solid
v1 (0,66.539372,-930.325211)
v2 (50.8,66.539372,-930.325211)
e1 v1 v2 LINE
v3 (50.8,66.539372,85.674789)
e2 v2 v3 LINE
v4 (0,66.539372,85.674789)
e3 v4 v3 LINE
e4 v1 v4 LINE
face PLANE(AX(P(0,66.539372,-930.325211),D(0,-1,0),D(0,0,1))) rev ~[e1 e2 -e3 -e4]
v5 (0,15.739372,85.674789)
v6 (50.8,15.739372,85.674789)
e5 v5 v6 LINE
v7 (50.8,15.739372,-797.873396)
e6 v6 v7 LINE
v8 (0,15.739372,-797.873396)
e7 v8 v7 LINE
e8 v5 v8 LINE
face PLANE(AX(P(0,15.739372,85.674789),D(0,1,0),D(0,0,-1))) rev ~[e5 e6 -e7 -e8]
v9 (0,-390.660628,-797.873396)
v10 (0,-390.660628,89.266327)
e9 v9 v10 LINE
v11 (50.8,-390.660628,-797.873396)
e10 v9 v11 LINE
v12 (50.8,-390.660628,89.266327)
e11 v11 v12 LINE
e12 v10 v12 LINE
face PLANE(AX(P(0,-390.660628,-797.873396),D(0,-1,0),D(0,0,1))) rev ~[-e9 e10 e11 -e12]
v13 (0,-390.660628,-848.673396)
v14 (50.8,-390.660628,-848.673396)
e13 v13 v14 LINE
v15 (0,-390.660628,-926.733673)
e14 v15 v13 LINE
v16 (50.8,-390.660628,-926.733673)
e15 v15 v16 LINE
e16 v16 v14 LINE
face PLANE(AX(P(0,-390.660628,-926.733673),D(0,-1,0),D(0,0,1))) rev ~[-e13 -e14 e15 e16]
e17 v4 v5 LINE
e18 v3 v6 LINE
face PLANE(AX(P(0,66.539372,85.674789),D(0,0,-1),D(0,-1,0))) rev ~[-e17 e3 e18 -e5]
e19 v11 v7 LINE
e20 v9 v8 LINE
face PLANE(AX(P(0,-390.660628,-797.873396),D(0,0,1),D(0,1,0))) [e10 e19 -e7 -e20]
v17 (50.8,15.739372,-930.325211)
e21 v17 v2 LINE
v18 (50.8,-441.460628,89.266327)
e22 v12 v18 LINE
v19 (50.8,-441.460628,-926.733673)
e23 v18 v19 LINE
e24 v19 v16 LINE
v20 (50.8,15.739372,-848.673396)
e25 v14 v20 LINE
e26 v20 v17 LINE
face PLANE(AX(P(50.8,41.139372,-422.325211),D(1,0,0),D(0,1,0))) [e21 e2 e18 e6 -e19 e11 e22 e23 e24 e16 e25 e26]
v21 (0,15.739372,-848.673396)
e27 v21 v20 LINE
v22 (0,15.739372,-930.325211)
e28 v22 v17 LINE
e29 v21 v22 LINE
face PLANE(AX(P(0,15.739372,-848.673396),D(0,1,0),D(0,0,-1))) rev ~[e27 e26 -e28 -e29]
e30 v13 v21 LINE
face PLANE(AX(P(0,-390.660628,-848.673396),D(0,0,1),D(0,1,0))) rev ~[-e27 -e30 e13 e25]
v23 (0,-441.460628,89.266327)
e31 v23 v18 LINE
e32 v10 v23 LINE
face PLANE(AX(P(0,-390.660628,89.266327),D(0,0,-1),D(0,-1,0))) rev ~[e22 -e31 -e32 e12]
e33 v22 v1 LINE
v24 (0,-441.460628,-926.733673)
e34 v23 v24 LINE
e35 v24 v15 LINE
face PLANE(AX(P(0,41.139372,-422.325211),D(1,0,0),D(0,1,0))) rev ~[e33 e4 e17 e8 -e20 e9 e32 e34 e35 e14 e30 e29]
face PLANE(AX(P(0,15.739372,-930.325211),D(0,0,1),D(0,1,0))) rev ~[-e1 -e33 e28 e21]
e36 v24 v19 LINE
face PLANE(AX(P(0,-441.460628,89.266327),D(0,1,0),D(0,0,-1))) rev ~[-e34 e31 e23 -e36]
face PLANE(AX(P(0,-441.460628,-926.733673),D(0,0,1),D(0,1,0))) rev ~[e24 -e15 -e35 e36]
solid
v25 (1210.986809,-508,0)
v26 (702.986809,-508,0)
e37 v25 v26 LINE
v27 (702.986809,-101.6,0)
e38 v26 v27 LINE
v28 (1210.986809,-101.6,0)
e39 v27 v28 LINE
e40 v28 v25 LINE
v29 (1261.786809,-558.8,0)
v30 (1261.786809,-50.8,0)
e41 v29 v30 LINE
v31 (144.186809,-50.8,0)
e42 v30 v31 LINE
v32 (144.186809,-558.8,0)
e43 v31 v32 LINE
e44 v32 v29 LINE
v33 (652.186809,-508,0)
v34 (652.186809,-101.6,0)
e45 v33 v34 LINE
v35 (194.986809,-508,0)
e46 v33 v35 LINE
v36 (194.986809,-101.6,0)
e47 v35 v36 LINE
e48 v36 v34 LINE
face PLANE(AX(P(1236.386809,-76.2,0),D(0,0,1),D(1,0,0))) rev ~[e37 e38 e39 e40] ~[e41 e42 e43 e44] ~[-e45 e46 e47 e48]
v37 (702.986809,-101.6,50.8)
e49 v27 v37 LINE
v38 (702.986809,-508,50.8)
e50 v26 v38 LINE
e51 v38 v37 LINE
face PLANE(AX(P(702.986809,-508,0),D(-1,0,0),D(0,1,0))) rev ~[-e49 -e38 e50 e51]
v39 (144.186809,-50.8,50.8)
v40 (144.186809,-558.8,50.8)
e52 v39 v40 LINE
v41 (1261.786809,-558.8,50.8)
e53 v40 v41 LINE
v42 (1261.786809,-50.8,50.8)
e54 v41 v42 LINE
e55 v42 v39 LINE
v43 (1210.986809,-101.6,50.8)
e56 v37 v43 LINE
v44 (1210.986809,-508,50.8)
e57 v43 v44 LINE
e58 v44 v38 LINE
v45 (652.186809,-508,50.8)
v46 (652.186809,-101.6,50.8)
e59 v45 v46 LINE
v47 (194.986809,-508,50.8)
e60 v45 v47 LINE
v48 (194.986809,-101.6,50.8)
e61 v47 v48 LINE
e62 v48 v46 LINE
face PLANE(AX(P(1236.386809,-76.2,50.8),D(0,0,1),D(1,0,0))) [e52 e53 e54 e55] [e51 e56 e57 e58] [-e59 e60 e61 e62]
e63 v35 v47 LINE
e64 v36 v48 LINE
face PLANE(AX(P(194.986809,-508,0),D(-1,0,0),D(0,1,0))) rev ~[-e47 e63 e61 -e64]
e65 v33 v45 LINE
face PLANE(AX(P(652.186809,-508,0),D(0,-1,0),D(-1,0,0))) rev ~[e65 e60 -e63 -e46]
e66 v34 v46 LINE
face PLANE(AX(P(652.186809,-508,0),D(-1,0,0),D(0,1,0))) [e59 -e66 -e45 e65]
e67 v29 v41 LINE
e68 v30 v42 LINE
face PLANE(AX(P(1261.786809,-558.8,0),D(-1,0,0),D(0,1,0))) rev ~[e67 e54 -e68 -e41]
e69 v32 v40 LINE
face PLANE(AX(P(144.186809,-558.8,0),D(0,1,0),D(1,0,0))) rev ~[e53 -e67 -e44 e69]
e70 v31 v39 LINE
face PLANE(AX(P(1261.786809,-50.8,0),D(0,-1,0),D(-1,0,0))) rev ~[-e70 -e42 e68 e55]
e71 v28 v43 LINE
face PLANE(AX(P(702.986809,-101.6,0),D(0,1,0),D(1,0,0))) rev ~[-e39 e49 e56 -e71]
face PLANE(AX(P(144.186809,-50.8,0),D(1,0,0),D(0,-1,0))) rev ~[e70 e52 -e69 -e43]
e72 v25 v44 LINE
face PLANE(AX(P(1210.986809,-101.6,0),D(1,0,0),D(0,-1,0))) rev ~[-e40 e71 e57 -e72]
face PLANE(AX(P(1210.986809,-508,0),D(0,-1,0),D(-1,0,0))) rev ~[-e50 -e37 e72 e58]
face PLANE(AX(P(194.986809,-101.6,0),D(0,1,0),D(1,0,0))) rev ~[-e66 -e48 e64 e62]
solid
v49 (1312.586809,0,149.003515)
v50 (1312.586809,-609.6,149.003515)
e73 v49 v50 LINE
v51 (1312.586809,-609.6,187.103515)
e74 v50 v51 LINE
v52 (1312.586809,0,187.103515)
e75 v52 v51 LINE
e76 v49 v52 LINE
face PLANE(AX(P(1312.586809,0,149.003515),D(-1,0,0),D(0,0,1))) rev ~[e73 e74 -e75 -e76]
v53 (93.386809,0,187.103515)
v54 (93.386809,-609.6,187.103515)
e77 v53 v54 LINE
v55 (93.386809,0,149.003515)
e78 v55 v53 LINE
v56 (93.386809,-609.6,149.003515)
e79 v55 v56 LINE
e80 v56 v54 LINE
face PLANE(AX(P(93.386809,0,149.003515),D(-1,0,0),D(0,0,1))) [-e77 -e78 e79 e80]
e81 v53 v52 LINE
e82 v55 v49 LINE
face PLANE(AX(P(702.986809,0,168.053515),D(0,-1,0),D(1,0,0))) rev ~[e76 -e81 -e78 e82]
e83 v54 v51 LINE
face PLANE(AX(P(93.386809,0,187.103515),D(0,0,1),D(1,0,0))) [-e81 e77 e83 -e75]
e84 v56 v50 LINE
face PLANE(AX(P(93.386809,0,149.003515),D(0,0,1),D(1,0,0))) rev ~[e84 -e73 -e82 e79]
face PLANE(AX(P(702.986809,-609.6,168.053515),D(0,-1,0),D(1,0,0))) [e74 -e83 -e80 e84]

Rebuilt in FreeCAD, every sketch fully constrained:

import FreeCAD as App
import Part
import Sketcher
from FreeCAD import Vector
Q = App.Units.Quantity

doc = App.newDocument("Part")
body = doc.addObject("PartDesign::Body", "Body")

# Sketch on YZ plane
sketch1 = body.newObject("Sketcher::SketchObject", "Sketch")
sketch1.AttachmentSupport = (doc.getObject("YZ_Plane"), [""])
sketch1.MapMode = "FlatFace"
sketch1.addGeometry(Part.LineSegment(Vector(67, -930, 0), Vector(67, 86, 0)), False)
sketch1.addGeometry(Part.LineSegment(Vector(67, 86, 0), Vector(16, 86, 0)), False)
sketch1.addGeometry(Part.LineSegment(Vector(16, 86, 0), Vector(16, -798, 0)), False)
sketch1.addGeometry(Part.LineSegment(Vector(16, -798, 0), Vector(-391, -798, 0)), False)
sketch1.addGeometry(Part.LineSegment(Vector(-391, -798, 0), Vector(-391, 89, 0)), False)
sketch1.addGeometry(Part.LineSegment(Vector(-391, 89, 0), Vector(-441, 89, 0)), False)
sketch1.addGeometry(Part.LineSegment(Vector(-441, 89, 0), Vector(-441, -927, 0)), False)
sketch1.addGeometry(Part.LineSegment(Vector(-441, -927, 0), Vector(-391, -927, 0)), False)
sketch1.addGeometry(Part.LineSegment(Vector(-391, -927, 0), Vector(-391, -849, 0)), False)
sketch1.addGeometry(Part.LineSegment(Vector(-391, -849, 0), Vector(16, -849, 0)), False)
sketch1.addGeometry(Part.LineSegment(Vector(16, -849, 0), Vector(16, -930, 0)), False)
sketch1.addGeometry(Part.LineSegment(Vector(16, -930, 0), Vector(67, -930, 0)), False)
sketch1.addConstraint(Sketcher.Constraint("Coincident", 0, 2, 1, 1))
sketch1.addConstraint(Sketcher.Constraint("Coincident", 1, 2, 2, 1))
sketch1.addConstraint(Sketcher.Constraint("Coincident", 2, 2, 3, 1))
sketch1.addConstraint(Sketcher.Constraint("Coincident", 3, 2, 4, 1))
sketch1.addConstraint(Sketcher.Constraint("Coincident", 4, 2, 5, 1))
sketch1.addConstraint(Sketcher.Constraint("Coincident", 5, 2, 6, 1))
sketch1.addConstraint(Sketcher.Constraint("Coincident", 6, 2, 7, 1))
sketch1.addConstraint(Sketcher.Constraint("Coincident", 7, 2, 8, 1))
sketch1.addConstraint(Sketcher.Constraint("Coincident", 8, 2, 9, 1))
sketch1.addConstraint(Sketcher.Constraint("Coincident", 9, 2, 10, 1))
sketch1.addConstraint(Sketcher.Constraint("Coincident", 10, 2, 11, 1))
sketch1.addConstraint(Sketcher.Constraint("Coincident", 11, 2, 0, 1))
sketch1.addConstraint(Sketcher.Constraint("Vertical", 0))
sketch1.addConstraint(Sketcher.Constraint("Horizontal", 1))
sketch1.addConstraint(Sketcher.Constraint("Vertical", 2))
sketch1.addConstraint(Sketcher.Constraint("Horizontal", 3))
sketch1.addConstraint(Sketcher.Constraint("Vertical", 4))
sketch1.addConstraint(Sketcher.Constraint("Horizontal", 5))
sketch1.addConstraint(Sketcher.Constraint("Vertical", 6))
sketch1.addConstraint(Sketcher.Constraint("Horizontal", 7))
sketch1.addConstraint(Sketcher.Constraint("Vertical", 8))
sketch1.addConstraint(Sketcher.Constraint("Horizontal", 9))
sketch1.addConstraint(Sketcher.Constraint("Vertical", 10))
sketch1.addConstraint(Sketcher.Constraint("Horizontal", 11))
sketch1.addConstraint(Sketcher.Constraint("Vertical", 4, 2, 7, 2))
sketch1.addConstraint(Sketcher.Constraint("Vertical", 2, 2, 9, 2))
sketch1.addConstraint(Sketcher.Constraint("Equal", 1, 5))
sketch1.addConstraint(Sketcher.Constraint("Equal", 0, 6))
sketch1.addConstraint(Sketcher.Constraint("DistanceX", 1, 2, 1, 1, Q("2 in")))
sketch1.addConstraint(Sketcher.Constraint("DistanceX", 3, 2, 3, 1, Q("16 in")))
sketch1.addConstraint(Sketcher.Constraint("DistanceY", 0, 1, 0, 2, Q("40 in")))
sketch1.addConstraint(Sketcher.Constraint("DistanceY", 8, 2, 3, 2, Q("2 in")))
sketch1.addConstraint(Sketcher.Constraint("DistanceY", 2, 2, 2, 1, Q("883.548185 mm")))
sketch1.addConstraint(Sketcher.Constraint("DistanceY", 4, 1, 4, 2, Q("887.139724 mm")))
sketch1.addConstraint(Sketcher.Constraint("DistanceX", -1, 1, 0, 2, Q("66.539372 mm")))
sketch1.addConstraint(Sketcher.Constraint("DistanceY", -1, 1, 0, 2, Q("85.674789 mm")))
pad1 = body.newObject("PartDesign::Pad", "Pad")
pad1.Profile = sketch1
pad1.Length = Q("2 in")
body2 = doc.addObject("PartDesign::Body", "Body001")

# Sketch on XZ plane
sketch2 = body2.newObject("Sketcher::SketchObject", "Sketch001")
sketch2.AttachmentSupport = (doc.getObject("XZ_Plane001"), [""])
sketch2.MapMode = "FlatFace"
sketch2.addGeometry(Part.LineSegment(Vector(93, 187, 0), Vector(93, 149, 0)), False)
sketch2.addGeometry(Part.LineSegment(Vector(93, 149, 0), Vector(1313, 149, 0)), False)
sketch2.addGeometry(Part.LineSegment(Vector(1313, 149, 0), Vector(1313, 187, 0)), False)
sketch2.addGeometry(Part.LineSegment(Vector(1313, 187, 0), Vector(93, 187, 0)), False)
sketch2.addConstraint(Sketcher.Constraint("Coincident", 0, 2, 1, 1))
sketch2.addConstraint(Sketcher.Constraint("Coincident", 1, 2, 2, 1))
sketch2.addConstraint(Sketcher.Constraint("Coincident", 2, 2, 3, 1))
sketch2.addConstraint(Sketcher.Constraint("Coincident", 3, 2, 0, 1))
sketch2.addConstraint(Sketcher.Constraint("Vertical", 0))
sketch2.addConstraint(Sketcher.Constraint("Horizontal", 1))
sketch2.addConstraint(Sketcher.Constraint("Vertical", 2))
sketch2.addConstraint(Sketcher.Constraint("Horizontal", 3))
sketch2.addConstraint(Sketcher.Constraint("DistanceX", 1, 1, 1, 2, Q("48 in")))
sketch2.addConstraint(Sketcher.Constraint("DistanceY", 0, 2, 0, 1, Q("1.5 in")))
sketch2.addConstraint(Sketcher.Constraint("DistanceX", -1, 1, 0, 2, Q("93.386809 mm")))
sketch2.addConstraint(Sketcher.Constraint("DistanceY", -1, 1, 0, 2, Q("149.003515 mm")))
pad2 = body2.newObject("PartDesign::Pad", "Pad001")
pad2.Profile = sketch2
pad2.Length = Q("24 in")
body3 = doc.addObject("PartDesign::Body", "Body002")

# Sketch on XY plane
sketch3 = body3.newObject("Sketcher::SketchObject", "Sketch002")
sketch3.AttachmentSupport = (doc.getObject("XY_Plane002"), [""])
sketch3.MapMode = "FlatFace"
sketch3.addGeometry(Part.LineSegment(Vector(144, -51, 0), Vector(144, -559, 0)), False)
sketch3.addGeometry(Part.LineSegment(Vector(144, -559, 0), Vector(1262, -559, 0)), False)
sketch3.addGeometry(Part.LineSegment(Vector(1262, -559, 0), Vector(1262, -51, 0)), False)
sketch3.addGeometry(Part.LineSegment(Vector(1262, -51, 0), Vector(144, -51, 0)), False)
sketch3.addGeometry(Part.LineSegment(Vector(1211, -508, 0), Vector(703, -508, 0)), False)
sketch3.addGeometry(Part.LineSegment(Vector(703, -508, 0), Vector(703, -102, 0)), False)
sketch3.addGeometry(Part.LineSegment(Vector(703, -102, 0), Vector(1211, -102, 0)), False)
sketch3.addGeometry(Part.LineSegment(Vector(1211, -102, 0), Vector(1211, -508, 0)), False)
sketch3.addGeometry(Part.LineSegment(Vector(652, -508, 0), Vector(195, -508, 0)), False)
sketch3.addGeometry(Part.LineSegment(Vector(195, -508, 0), Vector(195, -102, 0)), False)
sketch3.addGeometry(Part.LineSegment(Vector(195, -102, 0), Vector(652, -102, 0)), False)
sketch3.addGeometry(Part.LineSegment(Vector(652, -102, 0), Vector(652, -508, 0)), False)
sketch3.addConstraint(Sketcher.Constraint("Coincident", 0, 2, 1, 1))
sketch3.addConstraint(Sketcher.Constraint("Coincident", 1, 2, 2, 1))
sketch3.addConstraint(Sketcher.Constraint("Coincident", 2, 2, 3, 1))
sketch3.addConstraint(Sketcher.Constraint("Coincident", 3, 2, 0, 1))
sketch3.addConstraint(Sketcher.Constraint("Coincident", 4, 2, 5, 1))
sketch3.addConstraint(Sketcher.Constraint("Coincident", 5, 2, 6, 1))
sketch3.addConstraint(Sketcher.Constraint("Coincident", 6, 2, 7, 1))
sketch3.addConstraint(Sketcher.Constraint("Coincident", 7, 2, 4, 1))
sketch3.addConstraint(Sketcher.Constraint("Coincident", 8, 2, 9, 1))
sketch3.addConstraint(Sketcher.Constraint("Coincident", 9, 2, 10, 1))
sketch3.addConstraint(Sketcher.Constraint("Coincident", 10, 2, 11, 1))
sketch3.addConstraint(Sketcher.Constraint("Coincident", 11, 2, 8, 1))
sketch3.addConstraint(Sketcher.Constraint("Vertical", 0))
sketch3.addConstraint(Sketcher.Constraint("Horizontal", 1))
sketch3.addConstraint(Sketcher.Constraint("Vertical", 2))
sketch3.addConstraint(Sketcher.Constraint("Horizontal", 3))
sketch3.addConstraint(Sketcher.Constraint("Horizontal", 4))
sketch3.addConstraint(Sketcher.Constraint("Vertical", 5))
sketch3.addConstraint(Sketcher.Constraint("Horizontal", 6))
sketch3.addConstraint(Sketcher.Constraint("Vertical", 7))
sketch3.addConstraint(Sketcher.Constraint("Horizontal", 8))
sketch3.addConstraint(Sketcher.Constraint("Vertical", 9))
sketch3.addConstraint(Sketcher.Constraint("Horizontal", 10))
sketch3.addConstraint(Sketcher.Constraint("Vertical", 11))
sketch3.addConstraint(Sketcher.Constraint("Horizontal", 7, 2, 8, 2))
sketch3.addConstraint(Sketcher.Constraint("Horizontal", 6, 2, 9, 2))
sketch3.addConstraint(Sketcher.Constraint("Equal", 6, 0))
sketch3.addConstraint(Sketcher.Constraint("DistanceX", 1, 1, 1, 2, Q("44 in")))
sketch3.addConstraint(Sketcher.Constraint("DistanceX", 4, 2, 4, 1, Q("20 in")))
sketch3.addConstraint(Sketcher.Constraint("DistanceX", 8, 2, 8, 1, Q("18 in")))
sketch3.addConstraint(Sketcher.Constraint("DistanceY", 5, 1, 5, 2, Q("16 in")))
sketch3.addConstraint(Sketcher.Constraint("DistanceY", 0, 2, -1, 1, Q("22 in")))
sketch3.addConstraint(Sketcher.Constraint("DistanceY", 4, 2, -1, 1, Q("20 in")))
sketch3.addConstraint(Sketcher.Constraint("DistanceX", 0, 2, 4, 2, Q("22 in")))
sketch3.addConstraint(Sketcher.Constraint("DistanceX", 0, 2, 8, 2, Q("2 in")))
sketch3.addConstraint(Sketcher.Constraint("DistanceX", -1, 1, 0, 2, Q("144.186809 mm")))
pad3 = body3.newObject("PartDesign::Pad", "Pad002")
pad3.Profile = sketch3
pad3.Length = Q("2 in")

doc.recompute()
